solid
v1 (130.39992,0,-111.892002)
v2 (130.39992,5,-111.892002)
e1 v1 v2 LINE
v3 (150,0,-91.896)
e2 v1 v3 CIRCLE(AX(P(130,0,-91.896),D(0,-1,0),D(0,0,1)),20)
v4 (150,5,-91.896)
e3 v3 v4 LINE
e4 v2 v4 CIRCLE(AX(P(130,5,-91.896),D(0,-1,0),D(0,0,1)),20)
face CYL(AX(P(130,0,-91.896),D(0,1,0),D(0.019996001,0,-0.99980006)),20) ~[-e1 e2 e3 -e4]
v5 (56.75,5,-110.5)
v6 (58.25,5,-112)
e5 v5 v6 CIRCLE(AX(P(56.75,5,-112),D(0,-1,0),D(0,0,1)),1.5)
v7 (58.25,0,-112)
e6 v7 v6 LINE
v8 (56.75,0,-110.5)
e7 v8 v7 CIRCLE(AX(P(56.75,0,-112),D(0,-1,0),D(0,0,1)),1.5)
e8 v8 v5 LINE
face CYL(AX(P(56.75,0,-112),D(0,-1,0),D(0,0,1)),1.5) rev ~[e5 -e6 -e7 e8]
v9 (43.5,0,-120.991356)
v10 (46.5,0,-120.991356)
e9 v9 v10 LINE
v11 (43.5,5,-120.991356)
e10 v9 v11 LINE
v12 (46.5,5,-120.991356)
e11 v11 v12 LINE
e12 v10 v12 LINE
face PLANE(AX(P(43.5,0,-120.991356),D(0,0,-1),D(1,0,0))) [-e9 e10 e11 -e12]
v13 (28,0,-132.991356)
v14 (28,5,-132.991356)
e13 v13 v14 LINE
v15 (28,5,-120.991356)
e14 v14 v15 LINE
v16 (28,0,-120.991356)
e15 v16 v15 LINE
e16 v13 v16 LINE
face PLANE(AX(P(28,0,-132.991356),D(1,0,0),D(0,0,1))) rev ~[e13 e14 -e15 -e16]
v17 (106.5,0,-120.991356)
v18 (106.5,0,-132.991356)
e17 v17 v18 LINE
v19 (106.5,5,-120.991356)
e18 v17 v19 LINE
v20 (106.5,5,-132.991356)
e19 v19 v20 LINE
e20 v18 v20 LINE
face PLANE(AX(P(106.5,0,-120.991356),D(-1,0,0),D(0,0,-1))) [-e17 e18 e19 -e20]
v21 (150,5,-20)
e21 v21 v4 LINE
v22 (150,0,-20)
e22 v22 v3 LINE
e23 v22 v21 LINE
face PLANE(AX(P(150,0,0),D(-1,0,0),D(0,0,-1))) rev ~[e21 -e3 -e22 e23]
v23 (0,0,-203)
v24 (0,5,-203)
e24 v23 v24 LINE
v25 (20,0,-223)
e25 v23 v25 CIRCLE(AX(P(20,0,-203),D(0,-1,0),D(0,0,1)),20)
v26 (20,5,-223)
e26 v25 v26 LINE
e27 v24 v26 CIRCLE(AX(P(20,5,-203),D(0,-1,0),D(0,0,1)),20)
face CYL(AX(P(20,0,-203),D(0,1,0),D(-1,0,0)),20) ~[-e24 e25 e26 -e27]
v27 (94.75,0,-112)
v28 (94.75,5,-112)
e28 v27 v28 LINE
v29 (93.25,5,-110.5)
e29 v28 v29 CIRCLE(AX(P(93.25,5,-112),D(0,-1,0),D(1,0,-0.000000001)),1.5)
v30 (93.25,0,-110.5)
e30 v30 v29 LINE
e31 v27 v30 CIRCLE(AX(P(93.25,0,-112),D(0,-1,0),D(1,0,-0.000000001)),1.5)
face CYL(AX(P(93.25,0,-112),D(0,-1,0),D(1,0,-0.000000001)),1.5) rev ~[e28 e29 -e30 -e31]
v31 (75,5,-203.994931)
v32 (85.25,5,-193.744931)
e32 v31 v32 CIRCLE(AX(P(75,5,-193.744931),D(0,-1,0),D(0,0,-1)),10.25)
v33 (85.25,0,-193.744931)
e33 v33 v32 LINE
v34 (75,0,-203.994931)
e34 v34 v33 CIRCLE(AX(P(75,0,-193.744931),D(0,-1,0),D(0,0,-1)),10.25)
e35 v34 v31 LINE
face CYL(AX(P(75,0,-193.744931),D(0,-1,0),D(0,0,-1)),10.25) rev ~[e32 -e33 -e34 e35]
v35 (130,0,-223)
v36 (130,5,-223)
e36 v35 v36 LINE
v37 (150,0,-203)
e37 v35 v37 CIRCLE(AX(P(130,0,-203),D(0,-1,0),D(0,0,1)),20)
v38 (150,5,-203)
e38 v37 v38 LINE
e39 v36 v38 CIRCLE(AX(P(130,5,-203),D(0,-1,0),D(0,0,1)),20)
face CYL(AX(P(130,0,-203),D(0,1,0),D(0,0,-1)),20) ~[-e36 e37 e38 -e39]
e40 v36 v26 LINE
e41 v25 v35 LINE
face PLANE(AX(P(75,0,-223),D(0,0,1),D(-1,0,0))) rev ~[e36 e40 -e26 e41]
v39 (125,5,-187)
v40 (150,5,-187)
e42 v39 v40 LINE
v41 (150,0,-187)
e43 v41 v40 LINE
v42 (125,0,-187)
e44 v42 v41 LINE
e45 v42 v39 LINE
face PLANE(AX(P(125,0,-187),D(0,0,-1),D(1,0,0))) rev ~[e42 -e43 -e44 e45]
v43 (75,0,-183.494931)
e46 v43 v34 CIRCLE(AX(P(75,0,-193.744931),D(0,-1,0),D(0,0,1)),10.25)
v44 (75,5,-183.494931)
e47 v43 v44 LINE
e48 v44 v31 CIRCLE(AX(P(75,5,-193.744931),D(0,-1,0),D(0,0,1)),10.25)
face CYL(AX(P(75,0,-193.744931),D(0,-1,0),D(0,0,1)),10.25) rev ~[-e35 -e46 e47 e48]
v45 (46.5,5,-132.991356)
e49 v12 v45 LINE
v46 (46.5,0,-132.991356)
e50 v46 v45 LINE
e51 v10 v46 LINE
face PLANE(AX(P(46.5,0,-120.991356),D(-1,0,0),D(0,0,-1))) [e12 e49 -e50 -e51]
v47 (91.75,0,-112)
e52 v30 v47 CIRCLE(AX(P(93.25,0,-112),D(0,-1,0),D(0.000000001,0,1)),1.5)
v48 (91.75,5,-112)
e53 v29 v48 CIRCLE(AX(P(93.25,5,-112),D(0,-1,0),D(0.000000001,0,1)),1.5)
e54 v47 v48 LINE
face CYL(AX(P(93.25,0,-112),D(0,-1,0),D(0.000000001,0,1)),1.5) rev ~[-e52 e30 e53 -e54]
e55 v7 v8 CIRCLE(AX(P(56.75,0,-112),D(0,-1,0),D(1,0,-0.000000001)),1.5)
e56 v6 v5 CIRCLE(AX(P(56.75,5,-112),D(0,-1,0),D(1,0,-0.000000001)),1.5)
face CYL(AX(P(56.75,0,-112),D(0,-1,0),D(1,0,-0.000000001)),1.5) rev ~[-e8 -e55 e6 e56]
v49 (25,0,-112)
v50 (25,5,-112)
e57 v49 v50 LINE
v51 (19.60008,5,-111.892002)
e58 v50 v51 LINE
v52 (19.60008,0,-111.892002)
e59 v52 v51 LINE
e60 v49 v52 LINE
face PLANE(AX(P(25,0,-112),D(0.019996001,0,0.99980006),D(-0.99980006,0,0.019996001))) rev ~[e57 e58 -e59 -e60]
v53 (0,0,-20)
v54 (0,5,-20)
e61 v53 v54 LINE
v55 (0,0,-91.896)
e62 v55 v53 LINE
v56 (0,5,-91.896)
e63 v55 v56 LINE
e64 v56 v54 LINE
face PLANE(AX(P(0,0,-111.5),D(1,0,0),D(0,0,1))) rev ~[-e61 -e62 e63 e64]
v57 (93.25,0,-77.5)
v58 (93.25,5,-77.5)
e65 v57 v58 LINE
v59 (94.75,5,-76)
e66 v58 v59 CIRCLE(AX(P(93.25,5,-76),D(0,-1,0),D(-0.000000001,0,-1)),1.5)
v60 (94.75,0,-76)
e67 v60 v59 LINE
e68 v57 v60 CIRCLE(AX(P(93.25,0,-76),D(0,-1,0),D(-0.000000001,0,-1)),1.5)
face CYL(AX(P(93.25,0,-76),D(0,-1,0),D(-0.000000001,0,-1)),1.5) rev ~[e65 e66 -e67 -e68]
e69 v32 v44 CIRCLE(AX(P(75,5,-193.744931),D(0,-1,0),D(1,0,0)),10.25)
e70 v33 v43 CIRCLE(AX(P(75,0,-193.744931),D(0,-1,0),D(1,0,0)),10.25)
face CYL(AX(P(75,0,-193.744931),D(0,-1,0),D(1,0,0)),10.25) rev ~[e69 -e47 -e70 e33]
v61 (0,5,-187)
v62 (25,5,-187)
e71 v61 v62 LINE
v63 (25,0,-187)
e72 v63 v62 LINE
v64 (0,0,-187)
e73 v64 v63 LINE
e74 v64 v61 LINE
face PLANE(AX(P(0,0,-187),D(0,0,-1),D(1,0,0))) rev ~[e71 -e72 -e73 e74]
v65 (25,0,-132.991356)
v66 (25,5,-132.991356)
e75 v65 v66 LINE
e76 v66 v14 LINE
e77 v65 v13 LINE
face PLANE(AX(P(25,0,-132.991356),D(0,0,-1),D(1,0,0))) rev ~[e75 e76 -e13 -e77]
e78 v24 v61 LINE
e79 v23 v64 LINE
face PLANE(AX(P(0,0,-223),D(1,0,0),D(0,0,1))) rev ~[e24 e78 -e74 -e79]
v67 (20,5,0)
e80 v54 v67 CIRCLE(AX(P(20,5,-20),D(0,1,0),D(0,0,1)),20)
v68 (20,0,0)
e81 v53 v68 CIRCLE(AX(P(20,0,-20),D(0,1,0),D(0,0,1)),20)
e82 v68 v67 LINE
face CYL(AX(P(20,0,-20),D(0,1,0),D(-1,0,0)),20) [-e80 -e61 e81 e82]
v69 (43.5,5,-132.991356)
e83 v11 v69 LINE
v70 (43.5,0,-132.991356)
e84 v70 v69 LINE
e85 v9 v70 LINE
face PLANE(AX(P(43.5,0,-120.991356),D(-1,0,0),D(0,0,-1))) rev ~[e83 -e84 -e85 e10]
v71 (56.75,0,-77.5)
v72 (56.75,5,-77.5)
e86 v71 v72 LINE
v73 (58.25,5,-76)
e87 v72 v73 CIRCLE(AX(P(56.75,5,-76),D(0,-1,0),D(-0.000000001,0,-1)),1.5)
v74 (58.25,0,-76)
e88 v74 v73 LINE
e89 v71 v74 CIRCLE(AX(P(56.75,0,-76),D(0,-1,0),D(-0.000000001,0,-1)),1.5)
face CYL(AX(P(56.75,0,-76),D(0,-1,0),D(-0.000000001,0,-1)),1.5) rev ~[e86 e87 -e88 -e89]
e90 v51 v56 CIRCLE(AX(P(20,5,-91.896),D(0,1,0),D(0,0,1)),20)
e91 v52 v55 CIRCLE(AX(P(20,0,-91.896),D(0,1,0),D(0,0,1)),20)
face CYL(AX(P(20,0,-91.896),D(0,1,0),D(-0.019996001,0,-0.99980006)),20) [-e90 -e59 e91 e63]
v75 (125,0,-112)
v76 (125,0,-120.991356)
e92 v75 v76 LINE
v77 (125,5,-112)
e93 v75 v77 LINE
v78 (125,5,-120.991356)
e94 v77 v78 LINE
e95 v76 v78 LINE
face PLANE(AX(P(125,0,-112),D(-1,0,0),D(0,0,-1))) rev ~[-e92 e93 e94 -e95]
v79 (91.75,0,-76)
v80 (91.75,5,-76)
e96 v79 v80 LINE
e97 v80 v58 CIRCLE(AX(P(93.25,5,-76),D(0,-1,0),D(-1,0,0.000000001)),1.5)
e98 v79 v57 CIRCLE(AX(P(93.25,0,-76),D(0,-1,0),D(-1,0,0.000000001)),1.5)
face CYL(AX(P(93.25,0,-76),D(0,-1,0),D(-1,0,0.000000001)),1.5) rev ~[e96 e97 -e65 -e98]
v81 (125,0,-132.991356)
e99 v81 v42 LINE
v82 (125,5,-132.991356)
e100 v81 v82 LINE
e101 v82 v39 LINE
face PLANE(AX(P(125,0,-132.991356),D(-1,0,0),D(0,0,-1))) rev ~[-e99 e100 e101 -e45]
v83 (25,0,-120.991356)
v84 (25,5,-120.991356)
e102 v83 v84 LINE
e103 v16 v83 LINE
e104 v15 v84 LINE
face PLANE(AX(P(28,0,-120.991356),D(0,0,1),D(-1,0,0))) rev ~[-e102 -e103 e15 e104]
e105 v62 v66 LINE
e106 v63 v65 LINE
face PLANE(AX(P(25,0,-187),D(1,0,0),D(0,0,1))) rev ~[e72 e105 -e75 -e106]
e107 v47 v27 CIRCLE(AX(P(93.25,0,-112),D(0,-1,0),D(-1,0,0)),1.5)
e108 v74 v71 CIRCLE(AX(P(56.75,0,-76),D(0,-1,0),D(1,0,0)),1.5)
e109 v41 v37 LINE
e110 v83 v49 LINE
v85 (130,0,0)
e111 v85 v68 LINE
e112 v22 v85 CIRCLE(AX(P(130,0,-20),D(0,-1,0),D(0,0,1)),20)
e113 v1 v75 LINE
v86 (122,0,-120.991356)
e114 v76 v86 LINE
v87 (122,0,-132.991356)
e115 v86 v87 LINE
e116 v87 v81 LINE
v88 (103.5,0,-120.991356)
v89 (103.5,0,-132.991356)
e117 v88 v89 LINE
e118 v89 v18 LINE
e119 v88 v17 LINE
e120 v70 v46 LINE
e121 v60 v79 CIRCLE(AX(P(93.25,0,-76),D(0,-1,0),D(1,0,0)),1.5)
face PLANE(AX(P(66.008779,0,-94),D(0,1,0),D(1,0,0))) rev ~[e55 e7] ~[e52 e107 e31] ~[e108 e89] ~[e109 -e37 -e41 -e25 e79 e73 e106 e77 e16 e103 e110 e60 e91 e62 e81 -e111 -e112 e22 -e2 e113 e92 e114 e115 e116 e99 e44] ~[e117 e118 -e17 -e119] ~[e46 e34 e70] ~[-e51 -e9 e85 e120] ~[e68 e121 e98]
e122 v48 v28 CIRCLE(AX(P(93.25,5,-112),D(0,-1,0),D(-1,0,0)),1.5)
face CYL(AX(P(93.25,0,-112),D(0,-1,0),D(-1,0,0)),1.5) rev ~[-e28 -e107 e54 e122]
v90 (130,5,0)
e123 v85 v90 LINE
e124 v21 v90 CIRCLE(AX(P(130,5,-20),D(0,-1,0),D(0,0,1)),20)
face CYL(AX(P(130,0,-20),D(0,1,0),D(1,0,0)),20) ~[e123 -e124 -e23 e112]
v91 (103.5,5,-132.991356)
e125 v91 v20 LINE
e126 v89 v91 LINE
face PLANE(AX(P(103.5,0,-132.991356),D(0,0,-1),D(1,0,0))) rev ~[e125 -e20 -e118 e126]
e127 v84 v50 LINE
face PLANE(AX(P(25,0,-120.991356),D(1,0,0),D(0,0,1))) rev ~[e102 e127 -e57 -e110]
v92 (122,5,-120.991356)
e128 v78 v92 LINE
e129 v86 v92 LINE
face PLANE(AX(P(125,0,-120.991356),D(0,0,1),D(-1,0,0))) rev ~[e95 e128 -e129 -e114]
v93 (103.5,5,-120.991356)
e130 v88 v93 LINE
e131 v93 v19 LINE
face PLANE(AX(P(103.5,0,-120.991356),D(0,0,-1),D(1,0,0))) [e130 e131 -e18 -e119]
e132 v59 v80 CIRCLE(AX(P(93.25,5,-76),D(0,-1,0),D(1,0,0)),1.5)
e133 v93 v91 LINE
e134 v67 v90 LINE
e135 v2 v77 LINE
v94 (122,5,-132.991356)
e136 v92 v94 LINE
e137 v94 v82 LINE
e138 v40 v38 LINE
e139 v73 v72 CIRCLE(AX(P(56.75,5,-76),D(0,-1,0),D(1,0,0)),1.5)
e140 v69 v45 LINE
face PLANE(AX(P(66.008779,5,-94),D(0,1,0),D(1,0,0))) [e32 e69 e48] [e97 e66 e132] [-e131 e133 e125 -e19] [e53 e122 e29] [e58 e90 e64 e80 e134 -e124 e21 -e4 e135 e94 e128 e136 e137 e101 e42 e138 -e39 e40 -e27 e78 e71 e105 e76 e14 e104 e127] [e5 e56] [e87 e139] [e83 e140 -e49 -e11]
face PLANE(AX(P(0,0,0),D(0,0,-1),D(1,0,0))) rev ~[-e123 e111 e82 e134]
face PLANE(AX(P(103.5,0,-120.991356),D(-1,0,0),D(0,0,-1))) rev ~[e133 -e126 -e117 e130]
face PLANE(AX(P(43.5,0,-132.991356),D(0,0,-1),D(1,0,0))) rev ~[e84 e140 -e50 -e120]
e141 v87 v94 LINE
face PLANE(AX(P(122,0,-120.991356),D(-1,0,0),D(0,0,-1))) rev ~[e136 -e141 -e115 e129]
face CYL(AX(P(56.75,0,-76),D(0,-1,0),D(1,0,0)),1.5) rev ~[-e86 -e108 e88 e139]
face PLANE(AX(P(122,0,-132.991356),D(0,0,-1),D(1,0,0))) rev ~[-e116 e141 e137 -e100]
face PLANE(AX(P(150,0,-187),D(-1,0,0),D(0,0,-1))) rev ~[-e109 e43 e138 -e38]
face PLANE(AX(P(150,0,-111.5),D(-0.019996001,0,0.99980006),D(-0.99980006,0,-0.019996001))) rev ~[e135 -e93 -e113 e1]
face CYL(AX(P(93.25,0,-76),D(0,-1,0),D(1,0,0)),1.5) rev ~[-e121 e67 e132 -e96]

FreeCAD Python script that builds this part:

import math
import FreeCAD as App
import Part
import Sketcher

V = App.Vector


def edges_at(feature, points):
    """Names of the edges that pass closest to the given points."""
    edges = feature.Shape.Edges
    near = lambda p: min(range(len(edges)), key=lambda i: edges[i].distToShape(Part.Vertex(*p))[0])
    return sorted({f"Edge{near(p) + 1}" for p in points})


def add_polygon(sketch, points):
    """Adds a closed chain of lines whose ends are joined by coincident constraints."""
    first, n = sketch.GeometryCount, len(points)
    for a, b in zip(points, points[1:] + points[:1]):
        sketch.addGeometry(Part.LineSegment(App.Vector(*a, 0), App.Vector(*b, 0)), False)
    for i in range(n):
        sketch.addConstraint(Sketcher.Constraint("Coincident", first + i, 2, first + (i + 1) % n, 1))

doc = App.newDocument("Part")
body = doc.addObject("PartDesign::Body", "Body")

sketch1 = body.newObject("Sketcher::SketchObject", "Sketch")
sketch1.AttachmentSupport = (doc.getObject("XZ_Plane"), [""])
sketch1.MapMode = "FlatFace"
add_polygon(sketch1, [(0, 0), (150, 0), (150, -111.5), (125, -112), (125, -121), (122, -121), (122, -133), (125, -133), (125, -187), (150, -187), (150, -223), (0, -223), (0, -187), (25, -187), (25, -133), (28, -133), (28, -121), (25, -121), (25, -112), (0, -111.5)])
sketch1.addGeometry(Part.ArcOfCircle(Part.Circle(V(56.8, -76, 0), V(0, 0, 1), 1.5), math.radians(0), math.radians(270)), False)
sketch1.addGeometry(Part.ArcOfCircle(Part.Circle(V(56.8, -76, 0), V(0, 0, 1), 1.5), math.radians(-90), math.radians(0)), False)
sketch1.addGeometry(Part.ArcOfCircle(Part.Circle(V(56.8, -112, 0), V(0, 0, 1), 1.5), math.radians(90), math.radians(360)), False)
sketch1.addGeometry(Part.ArcOfCircle(Part.Circle(V(56.8, -112, 0), V(0, 0, 1), 1.5), math.radians(0), math.radians(90)), False)
sketch1.addGeometry(Part.ArcOfCircle(Part.Circle(V(75, -193.7, 0), V(0, 0, 1), 10.2), math.radians(90), math.radians(270)), False)
sketch1.addGeometry(Part.ArcOfCircle(Part.Circle(V(75, -193.7, 0), V(0, 0, 1), 10.3), math.radians(-90), math.radians(0)), False)
sketch1.addGeometry(Part.ArcOfCircle(Part.Circle(V(75, -193.7, 0), V(0, 0, 1), 10.3), math.radians(0), math.radians(90)), False)
add_polygon(sketch1, [(46.5, -121), (43.5, -121), (43.5, -133), (46.5, -133)])
add_polygon(sketch1, [(103.5, -121), (103.5, -133), (106.5, -133), (106.5, -121)])
sketch1.addGeometry(Part.ArcOfCircle(Part.Circle(V(93.2, -76, 0), V(0, 0, 1), 1.5), math.radians(0), math.radians(180)), False)
sketch1.addGeometry(Part.ArcOfCircle(Part.Circle(V(93.2, -76, 0), V(0, 0, 1), 1.5), math.radians(180), math.radians(270)), False)
sketch1.addGeometry(Part.ArcOfCircle(Part.Circle(V(93.3, -76, 0), V(0, 0, 1), 1.5), math.radians(-90), math.radians(0)), False)
sketch1.addGeometry(Part.ArcOfCircle(Part.Circle(V(93.3, -112, 0), V(0, 0, 1), 1.5), math.radians(0), math.radians(90)), False)
sketch1.addGeometry(Part.ArcOfCircle(Part.Circle(V(93.2, -112, 0), V(0, 0, 1), 1.5), math.radians(90), math.radians(180)), False)
sketch1.addGeometry(Part.ArcOfCircle(Part.Circle(V(93.2, -112, 0), V(0, 0, 1), 1.5), math.radians(180), math.radians(360)), False)
sketch1.addConstraint([
    Sketcher.Constraint("Tangent", 20, 1, 21, 2),
    Sketcher.Constraint("Coincident", 21, 1, 20, 2),
    Sketcher.Constraint("Tangent", 22, 1, 23, 2),
    Sketcher.Constraint("Coincident", 23, 1, 22, 2),
    Sketcher.Constraint("Tangent", 24, 2, 25, 1),
    Sketcher.Constraint("Tangent", 25, 2, 26, 1),
    Sketcher.Constraint("Tangent", 26, 2, 24, 1),
    Sketcher.Constraint("Tangent", 35, 2, 36, 1),
    Sketcher.Constraint("Tangent", 36, 2, 37, 1),
    Sketcher.Constraint("Tangent", 37, 2, 35, 1),
    Sketcher.Constraint("Tangent", 38, 2, 39, 1),
    Sketcher.Constraint("Tangent", 39, 2, 40, 1),
    Sketcher.Constraint("Tangent", 40, 2, 38, 1),
    Sketcher.Constraint("Horizontal", 0),
    Sketcher.Constraint("Vertical", 1),
    Sketcher.Constraint("Vertical", 3),
    Sketcher.Constraint("Horizontal", 4),
    Sketcher.Constraint("Vertical", 5),
    Sketcher.Constraint("Horizontal", 6),
    Sketcher.Constraint("Vertical", 7),
    Sketcher.Constraint("Horizontal", 8),
    Sketcher.Constraint("Vertical", 9),
    Sketcher.Constraint("Horizontal", 10),
    Sketcher.Constraint("Vertical", 11),
    Sketcher.Constraint("Horizontal", 12),
    Sketcher.Constraint("Vertical", 13),
    Sketcher.Constraint("Horizontal", 14),
    Sketcher.Constraint("Vertical", 15),
    Sketcher.Constraint("Horizontal", 16),
    Sketcher.Constraint("Vertical", 17),
    Sketcher.Constraint("Vertical", 19),
    Sketcher.Constraint("Horizontal", 27),
    Sketcher.Constraint("Vertical", 28),
    Sketcher.Constraint("Horizontal", 29),
    Sketcher.Constraint("Vertical", 30),
    Sketcher.Constraint("Vertical", 31),
    Sketcher.Constraint("Horizontal", 32),
    Sketcher.Constraint("Vertical", 33),
    Sketcher.Constraint("Horizontal", 34),
    Sketcher.Constraint("Coincident", 19, 2, -1, 1),
    Sketcher.Constraint("Equal", 21, 22),
    Sketcher.Constraint("Equal", 23, 35),
    Sketcher.Constraint("Equal", 37, 38),
    Sketcher.Constraint("PointOnObject", 10, 2, -2),
    Sketcher.Constraint("Horizontal", 21, 3, 35, 3),
    Sketcher.Constraint("Horizontal", 23, 3, 38, 3),
    Sketcher.Constraint("Horizontal", 40, 3, 2, 2),
    Sketcher.Constraint("Horizontal", 8, 2, 11, 2),
    Sketcher.Constraint("Horizontal", 6, 2, 13, 2),
    Sketcher.Constraint("Horizontal", 4, 2, 15, 2),
    Sketcher.Constraint("Horizontal", 2, 2, 17, 2),
    Sketcher.Constraint("Horizontal", 1, 2, 18, 2),
    Sketcher.Constraint("Horizontal", 37, 3, 20, 1),
    Sketcher.Constraint("Horizontal", 17, 2, 23, 1),
    Sketcher.Constraint("Horizontal", 26, 3, 25, 2),
    Sketcher.Constraint("Horizontal", 16, 2, 27, 2),
    Sketcher.Constraint("Horizontal", 14, 2, 28, 2),
    Sketcher.Constraint("Horizontal", 29, 2, 31, 2),
    Sketcher.Constraint("Horizontal", 30, 2, 33, 2),
    Sketcher.Constraint("Horizontal", 20, 1, 35, 2),
    Sketcher.Constraint("Horizontal", 35, 2, 37, 2),
    Sketcher.Constraint("Horizontal", 23, 1, 39, 2),
    Sketcher.Constraint("Horizontal", 39, 2, 40, 2),
    Sketcher.Constraint("Vertical", 21, 3, 22, 3),
    Sketcher.Constraint("Vertical", 37, 3, 38, 3),
    Sketcher.Constraint("Vertical", 3, 2, 6, 2),
    Sketcher.Constraint("Vertical", 1, 2, 8, 2),
    Sketcher.Constraint("Vertical", 13, 2, 16, 2),
    Sketcher.Constraint("Vertical", 23, 3, 21, 1),
    Sketcher.Constraint("Vertical", 21, 1, 22, 1),
    Sketcher.Constraint("Vertical", 26, 3, 24, 2),
    Sketcher.Constraint("Vertical", 24, 2, 26, 2),
    Sketcher.Constraint("Vertical", 40, 3, 36, 2),
    Sketcher.Constraint("Vertical", 36, 2, 38, 2),
    Sketcher.Constraint("Equal", 8, 12),
    Sketcher.Constraint("Equal", 6, 14),
    Sketcher.Constraint("Equal", 16, 27),
    Sketcher.Constraint("Equal", 29, 32),
    Sketcher.Constraint("Radius", 20, 1.5),
    Sketcher.Constraint("DistanceX", 0, 1, 0, 2, 150.0),
    Sketcher.Constraint("DistanceX", 4, 2, 4, 1, 3.0),
    Sketcher.Constraint("DistanceX", 8, 1, 8, 2, 25.0),
    Sketcher.Constraint("DistanceY", 5, 2, 5, 1, 12.0),
    Sketcher.Constraint("DistanceY", 9, 2, 9, 1, 36.0),
    Sketcher.Constraint("Radius", 24, 10.25),
    Sketcher.Constraint("DistanceY", 1, 2, 1, 1, 111.5),
    Sketcher.Constraint("DistanceY", 20, 3, -1, 1, 76.0),
    Sketcher.Constraint("DistanceY", 22, 3, -1, 1, 112.0),
    Sketcher.Constraint("DistanceX", -1, 1, 24, 3, 75.0),
    Sketcher.Constraint("DistanceY", 7, 2, -1, 1, 187.0),
    Sketcher.Constraint("DistanceX", 20, 1, 36, 3, 35.0),
    Sketcher.Constraint("DistanceX", -1, 1, 27, 2, 43.5),
    Sketcher.Constraint("DistanceX", -1, 1, 31, 2, 103.5),
    Sketcher.Constraint("DistanceX", -1, 1, 20, 3, 56.75),
    Sketcher.Constraint("DistanceY", 3, 2, 3, 1, 8.991356),
    Sketcher.Constraint("DistanceY", 24, 3, -1, 1, 193.744931),
])
pad1 = body.newObject("PartDesign::Pad", "Pad")
pad1.Profile = sketch1
pad1.Length = 5
pad1.Reversed = True
doc.recompute()

fillet = body.newObject("PartDesign::Fillet", "Fillet")
fillet.Base = (pad1, edges_at(pad1, [(0, 2.5, -223)]))
fillet.Radius = 20
doc.recompute()

fillet2 = body.newObject("PartDesign::Fillet", "Fillet001")
fillet2.Base = (fillet, edges_at(fillet, [(150, 2.5, -223)]))
fillet2.Radius = 20
doc.recompute()

fillet3 = body.newObject("PartDesign::Fillet", "Fillet002")
fillet3.Base = (fillet2, edges_at(fillet2, [
    (150, 2.5, -111.5),
    (150, 2.5, 0),
    (0, 2.5, 0),
    (0, 2.5, -111.5),
]))
fillet3.Radius = 20

doc.recompute()
